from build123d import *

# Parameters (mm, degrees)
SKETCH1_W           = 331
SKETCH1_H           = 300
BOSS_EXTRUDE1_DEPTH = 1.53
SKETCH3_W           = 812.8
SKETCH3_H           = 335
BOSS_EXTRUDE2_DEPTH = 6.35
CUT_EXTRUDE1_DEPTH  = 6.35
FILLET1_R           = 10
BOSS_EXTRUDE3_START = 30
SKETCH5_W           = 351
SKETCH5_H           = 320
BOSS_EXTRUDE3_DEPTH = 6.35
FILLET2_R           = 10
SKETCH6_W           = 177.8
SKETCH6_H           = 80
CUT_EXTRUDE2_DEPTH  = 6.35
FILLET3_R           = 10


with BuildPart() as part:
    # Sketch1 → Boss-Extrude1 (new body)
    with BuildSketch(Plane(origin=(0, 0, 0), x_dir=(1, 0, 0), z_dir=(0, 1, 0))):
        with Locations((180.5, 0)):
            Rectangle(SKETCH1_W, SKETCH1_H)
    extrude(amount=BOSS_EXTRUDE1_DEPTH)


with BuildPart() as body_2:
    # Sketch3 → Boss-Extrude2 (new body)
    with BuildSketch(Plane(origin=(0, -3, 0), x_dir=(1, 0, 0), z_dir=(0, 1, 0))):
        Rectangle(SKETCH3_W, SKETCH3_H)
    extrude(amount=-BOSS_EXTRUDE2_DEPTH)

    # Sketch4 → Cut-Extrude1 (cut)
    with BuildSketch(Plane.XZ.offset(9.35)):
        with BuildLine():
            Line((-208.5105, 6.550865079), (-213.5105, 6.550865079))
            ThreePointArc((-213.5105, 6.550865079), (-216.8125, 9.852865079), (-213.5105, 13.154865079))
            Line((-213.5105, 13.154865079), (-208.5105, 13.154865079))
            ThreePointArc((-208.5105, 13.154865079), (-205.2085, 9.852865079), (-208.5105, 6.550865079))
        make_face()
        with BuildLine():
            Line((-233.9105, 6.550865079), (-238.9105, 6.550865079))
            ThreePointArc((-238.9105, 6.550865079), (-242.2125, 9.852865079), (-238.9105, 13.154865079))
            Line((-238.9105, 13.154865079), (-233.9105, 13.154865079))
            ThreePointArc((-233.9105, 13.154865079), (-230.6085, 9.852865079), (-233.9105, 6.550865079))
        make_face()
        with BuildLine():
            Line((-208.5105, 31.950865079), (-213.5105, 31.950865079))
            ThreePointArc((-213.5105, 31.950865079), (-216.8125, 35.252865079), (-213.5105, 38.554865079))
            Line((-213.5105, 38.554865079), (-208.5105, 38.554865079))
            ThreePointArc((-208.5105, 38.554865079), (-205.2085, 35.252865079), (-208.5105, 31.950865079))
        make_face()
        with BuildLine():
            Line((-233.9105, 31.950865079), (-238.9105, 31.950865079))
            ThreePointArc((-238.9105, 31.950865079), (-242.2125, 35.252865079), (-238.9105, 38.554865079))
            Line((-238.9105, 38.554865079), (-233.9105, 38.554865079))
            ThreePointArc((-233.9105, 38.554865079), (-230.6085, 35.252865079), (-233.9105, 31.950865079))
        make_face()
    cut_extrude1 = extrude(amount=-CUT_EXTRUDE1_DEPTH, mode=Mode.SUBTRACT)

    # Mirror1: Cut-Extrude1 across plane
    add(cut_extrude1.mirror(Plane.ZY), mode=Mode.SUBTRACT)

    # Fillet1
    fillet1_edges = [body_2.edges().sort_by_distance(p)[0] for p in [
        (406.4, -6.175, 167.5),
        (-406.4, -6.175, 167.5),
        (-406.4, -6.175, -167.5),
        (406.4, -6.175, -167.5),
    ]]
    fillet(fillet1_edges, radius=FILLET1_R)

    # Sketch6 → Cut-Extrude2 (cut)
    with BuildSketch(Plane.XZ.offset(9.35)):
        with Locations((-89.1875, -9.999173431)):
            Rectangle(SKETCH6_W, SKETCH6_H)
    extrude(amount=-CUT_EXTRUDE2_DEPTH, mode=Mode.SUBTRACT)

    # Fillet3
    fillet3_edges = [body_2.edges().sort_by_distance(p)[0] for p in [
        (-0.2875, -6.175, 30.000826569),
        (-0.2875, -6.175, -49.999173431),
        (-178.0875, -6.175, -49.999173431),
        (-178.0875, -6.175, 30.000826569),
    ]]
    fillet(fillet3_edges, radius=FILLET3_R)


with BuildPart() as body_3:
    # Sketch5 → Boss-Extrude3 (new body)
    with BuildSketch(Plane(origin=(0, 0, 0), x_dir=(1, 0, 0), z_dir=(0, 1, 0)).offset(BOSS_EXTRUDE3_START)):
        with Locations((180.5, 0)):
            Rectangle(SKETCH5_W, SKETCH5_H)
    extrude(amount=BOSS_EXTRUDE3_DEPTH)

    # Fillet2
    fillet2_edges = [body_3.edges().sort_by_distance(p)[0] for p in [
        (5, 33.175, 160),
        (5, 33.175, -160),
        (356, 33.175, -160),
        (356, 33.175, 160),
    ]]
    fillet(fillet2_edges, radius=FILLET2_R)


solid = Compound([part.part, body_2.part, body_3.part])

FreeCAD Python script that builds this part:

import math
import FreeCAD as App
import Part
import Sketcher
from FreeCAD import Vector
Q = App.Units.Quantity


def edges_at(feature, points):
    """Names of the edges that pass closest to the given points."""
    edges = feature.Shape.Edges
    near = lambda p: min(range(len(edges)), key=lambda i: edges[i].distToShape(Part.Vertex(*p))[0])
    return sorted({f"Edge{near(p) + 1}" for p in points})


def add_polygon(sketch, points):
    """Adds a closed chain of lines whose ends are joined by coincident constraints."""
    first, n = sketch.GeometryCount, len(points)
    for a, b in zip(points, points[1:] + points[:1]):
        sketch.addGeometry(Part.LineSegment(App.Vector(*a, 0), App.Vector(*b, 0)), False)
    for i in range(n):
        sketch.addConstraint(Sketcher.Constraint("Coincident", first + i, 2, first + (i + 1) % n, 1))

doc = App.newDocument("Part")
body = doc.addObject("PartDesign::Body", "Body")

# Sketch on XZ plane
sketch1 = doc.addObject("Sketcher::SketchObject", "Sketch")
body.addObject(sketch1)
sketch1.AttachmentSupport = (doc.XZ_Plane, [""])
sketch1.MapMode = "FlatFace"
add_polygon(sketch1, [(15, -150), (15, 150), (346, 150), (346, -150)])  # lines 0-3
sketch1.addConstraint(Sketcher.Constraint("Vertical", 0))
sketch1.addConstraint(Sketcher.Constraint("Horizontal", 1))
sketch1.addConstraint(Sketcher.Constraint("Vertical", 2))
sketch1.addConstraint(Sketcher.Constraint("Horizontal", 3))
sketch1.addConstraint(Sketcher.Constraint("DistanceX", 1, 1, 1, 2, Q("331 mm")))
sketch1.addConstraint(Sketcher.Constraint("DistanceY", 0, 1, 0, 2, Q("300 mm")))
sketch1.addConstraint(Sketcher.Constraint("DistanceX", -1, 1, 0, 2, Q("15 mm")))
sketch1.addConstraint(Sketcher.Constraint("DistanceY", -1, 1, 0, 2, Q("150 mm")))
pad1 = doc.addObject("PartDesign::Pad", "Pad")
body.addObject(pad1)
pad1.Profile = sketch1
pad1.Length = 1.53
pad1.Reversed = True
body2 = doc.addObject("PartDesign::Body", "Body001")

# Sketch on XZ plane
sketch2 = doc.addObject("Sketcher::SketchObject", "Sketch001")
body2.addObject(sketch2)
sketch2.AttachmentSupport = (doc.getObject("XZ_Plane001"), [""])
sketch2.MapMode = "FlatFace"
sketch2.AttachmentOffset = App.Placement(Vector(0, 0, 3), App.Rotation())
add_polygon(sketch2, [(-406, -168), (-406, 168), (406, 168), (406, -168)])  # lines 0-3
sketch2.addConstraint(Sketcher.Constraint("Vertical", 0))
sketch2.addConstraint(Sketcher.Constraint("Horizontal", 1))
sketch2.addConstraint(Sketcher.Constraint("Vertical", 2))
sketch2.addConstraint(Sketcher.Constraint("Horizontal", 3))
sketch2.addConstraint(Sketcher.Constraint("Symmetric", 0, 2, 2, 2, -1, 1))
sketch2.addConstraint(Sketcher.Constraint("DistanceY", 0, 1, 0, 2, Q("335 mm")))
sketch2.addConstraint(Sketcher.Constraint("DistanceX", 1, 1, 1, 2, Q("812.8 mm")))
pad2 = doc.addObject("PartDesign::Pad", "Pad001")
body2.addObject(pad2)
pad2.Profile = sketch2
pad2.Length = 6.35

# Sketch on XZ plane
sketch3 = doc.addObject("Sketcher::SketchObject", "Sketch002")
body2.addObject(sketch3)
sketch3.AttachmentSupport = (doc.getObject("XZ_Plane001"), [""])
sketch3.MapMode = "FlatFace"
sketch3.AttachmentOffset = App.Placement(Vector(0, 0, 9.35), App.Rotation())
sketch3.addGeometry(Part.LineSegment(Vector(-213.5, 6.6, 0), Vector(-208.5, 6.6, 0)), False)
sketch3.addGeometry(Part.ArcOfCircle(Part.Circle(Vector(-208.5, 9.9, 0), Vector(0, 0, 1), 3.3), math.radians(-90), math.radians(90)), False)
sketch3.addGeometry(Part.LineSegment(Vector(-208.5, 13.2, 0), Vector(-213.5, 13.2, 0)), False)
sketch3.addGeometry(Part.ArcOfCircle(Part.Circle(Vector(-213.5, 9.9, 0), Vector(0, 0, 1), 3.3), math.radians(90), math.radians(270)), False)
sketch3.addGeometry(Part.LineSegment(Vector(-238.9, 6.6, 0), Vector(-233.9, 6.6, 0)), False)
sketch3.addGeometry(Part.ArcOfCircle(Part.Circle(Vector(-233.9, 9.9, 0), Vector(0, 0, 1), 3.3), math.radians(-90), math.radians(90)), False)
sketch3.addGeometry(Part.LineSegment(Vector(-233.9, 13.2, 0), Vector(-238.9, 13.2, 0)), False)
sketch3.addGeometry(Part.ArcOfCircle(Part.Circle(Vector(-238.9, 9.9, 0), Vector(0, 0, 1), 3.3), math.radians(90), math.radians(270)), False)
sketch3.addGeometry(Part.LineSegment(Vector(-213.5, 32, 0), Vector(-208.5, 32, 0)), False)
sketch3.addGeometry(Part.ArcOfCircle(Part.Circle(Vector(-208.5, 35.3, 0), Vector(0, 0, 1), 3.3), math.radians(-90), math.radians(90)), False)
sketch3.addGeometry(Part.LineSegment(Vector(-208.5, 38.6, 0), Vector(-213.5, 38.6, 0)), False)
sketch3.addGeometry(Part.ArcOfCircle(Part.Circle(Vector(-213.5, 35.3, 0), Vector(0, 0, 1), 3.3), math.radians(90), math.radians(270)), False)
sketch3.addGeometry(Part.LineSegment(Vector(-238.9, 32, 0), Vector(-233.9, 32, 0)), False)
sketch3.addGeometry(Part.ArcOfCircle(Part.Circle(Vector(-233.9, 35.3, 0), Vector(0, 0, 1), 3.3), math.radians(-90), math.radians(90)), False)
sketch3.addGeometry(Part.LineSegment(Vector(-233.9, 38.6, 0), Vector(-238.9, 38.6, 0)), False)
sketch3.addGeometry(Part.ArcOfCircle(Part.Circle(Vector(-238.9, 35.3, 0), Vector(0, 0, 1), 3.3), math.radians(90), math.radians(270)), False)
sketch3.addConstraint(Sketcher.Constraint("Tangent", 0, 2, 1, 1))
sketch3.addConstraint(Sketcher.Constraint("Tangent", 1, 2, 2, 1))
sketch3.addConstraint(Sketcher.Constraint("Tangent", 2, 2, 3, 1))
sketch3.addConstraint(Sketcher.Constraint("Tangent", 3, 2, 0, 1))
sketch3.addConstraint(Sketcher.Constraint("Tangent", 4, 2, 5, 1))
sketch3.addConstraint(Sketcher.Constraint("Tangent", 5, 2, 6, 1))
sketch3.addConstraint(Sketcher.Constraint("Tangent", 6, 2, 7, 1))
sketch3.addConstraint(Sketcher.Constraint("Tangent", 7, 2, 4, 1))
sketch3.addConstraint(Sketcher.Constraint("Tangent", 8, 2, 9, 1))
sketch3.addConstraint(Sketcher.Constraint("Tangent", 9, 2, 10, 1))
sketch3.addConstraint(Sketcher.Constraint("Tangent", 10, 2, 11, 1))
sketch3.addConstraint(Sketcher.Constraint("Tangent", 11, 2, 8, 1))
sketch3.addConstraint(Sketcher.Constraint("Tangent", 12, 2, 13, 1))
sketch3.addConstraint(Sketcher.Constraint("Tangent", 13, 2, 14, 1))
sketch3.addConstraint(Sketcher.Constraint("Tangent", 14, 2, 15, 1))
sketch3.addConstraint(Sketcher.Constraint("Tangent", 15, 2, 12, 1))
sketch3.addConstraint(Sketcher.Constraint("Horizontal", 0))
sketch3.addConstraint(Sketcher.Constraint("Horizontal", 2))
sketch3.addConstraint(Sketcher.Constraint("Horizontal", 4))
sketch3.addConstraint(Sketcher.Constraint("Horizontal", 6))
sketch3.addConstraint(Sketcher.Constraint("Horizontal", 8))
sketch3.addConstraint(Sketcher.Constraint("Horizontal", 10))
sketch3.addConstraint(Sketcher.Constraint("Horizontal", 12))
sketch3.addConstraint(Sketcher.Constraint("Horizontal", 14))
sketch3.addConstraint(Sketcher.Constraint("Equal", 3, 5))
sketch3.addConstraint(Sketcher.Constraint("Equal", 7, 9))
sketch3.addConstraint(Sketcher.Constraint("Equal", 11, 13))
sketch3.addConstraint(Sketcher.Constraint("Horizontal", 3, 3, 5, 3))
sketch3.addConstraint(Sketcher.Constraint("Horizontal", 11, 3, 13, 3))
sketch3.addConstraint(Sketcher.Constraint("Vertical", 1, 3, 9, 3))
sketch3.addConstraint(Sketcher.Constraint("Vertical", 3, 3, 11, 3))
sketch3.addConstraint(Sketcher.Constraint("Vertical", 5, 3, 13, 3))
sketch3.addConstraint(Sketcher.Constraint("Vertical", 7, 3, 15, 3))
sketch3.addConstraint(Sketcher.Constraint("Equal", 2, 4))
sketch3.addConstraint(Sketcher.Constraint("DistanceX", 0, 1, 0, 2, Q("5 mm")))
sketch3.addConstraint(Sketcher.Constraint("Radius", 1, Q("3.302 mm")))
sketch3.addConstraint(Sketcher.Constraint("DistanceX", 5, 3, 3, 3, Q("20.4 mm")))
sketch3.addConstraint(Sketcher.Constraint("DistanceY", 1, 3, 9, 3, Q("25.4 mm")))
sketch3.addConstraint(Sketcher.Constraint("DistanceX", 1, 3, -1, 1, Q("208.5105 mm")))
sketch3.addConstraint(Sketcher.Constraint("DistanceY", -1, 1, 1, 3, Q("9.852865 mm")))
pocket1 = doc.addObject("PartDesign::Pocket", "Pocket")
body2.addObject(pocket1)
pocket1.Profile = sketch3
pocket1.Length = 6.35
doc.recompute()

mirrored = doc.addObject("PartDesign::Mirrored", "Mirrored")
body2.addObject(mirrored)
mirrored.Originals = [pocket1]
mirrored.MirrorPlane = (doc.getObject("YZ_Plane001"), [""])
body2.Tip = mirrored
doc.recompute()

fillet = doc.addObject("PartDesign::Fillet", "Fillet")
body2.addObject(fillet)
fillet.Base = (mirrored, edges_at(mirrored, [
    (406.4, -6.175, 167.5),
    (-406.4, -6.175, 167.5),
    (-406.4, -6.175, -167.5),
    (406.4, -6.175, -167.5),
]))
fillet.Radius = 10

# Sketch on XZ plane
sketch4 = doc.addObject("Sketcher::SketchObject", "Sketch003")
body2.addObject(sketch4)
sketch4.AttachmentSupport = (doc.getObject("XZ_Plane001"), [""])
sketch4.MapMode = "FlatFace"
sketch4.AttachmentOffset = App.Placement(Vector(0, 0, 9.35), App.Rotation())
add_polygon(sketch4, [(-178, 30), (-178, -50), (0, -50), (0, 30)])  # lines 0-3
sketch4.addConstraint(Sketcher.Constraint("Vertical", 0))
sketch4.addConstraint(Sketcher.Constraint("Horizontal", 1))
sketch4.addConstraint(Sketcher.Constraint("Vertical", 2))
sketch4.addConstraint(Sketcher.Constraint("Horizontal", 3))
sketch4.addConstraint(Sketcher.Constraint("DistanceY", 0, 2, 0, 1, Q("80 mm")))
sketch4.addConstraint(Sketcher.Constraint("DistanceX", 1, 1, 1, 2, Q("177.8 mm")))
sketch4.addConstraint(Sketcher.Constraint("DistanceX", 0, 2, -1, 1, Q("178.0875 mm")))
sketch4.addConstraint(Sketcher.Constraint("DistanceY", 0, 2, -1, 1, Q("49.999173 mm")))
pocket2 = doc.addObject("PartDesign::Pocket", "Pocket001")
body2.addObject(pocket2)
pocket2.Profile = sketch4
pocket2.Length = 6.35
doc.recompute()

fillet2 = doc.addObject("PartDesign::Fillet", "Fillet001")
body2.addObject(fillet2)
fillet2.Base = (pocket2, edges_at(pocket2, [
    (-0.287, -6.175, 30.001),
    (-0.287, -6.175, -49.999),
    (-178.088, -6.175, -49.999),
    (-178.088, -6.175, 30.001),
]))
fillet2.Radius = 10
body3 = doc.addObject("PartDesign::Body", "Body002")

# Sketch on XZ plane
sketch5 = doc.addObject("Sketcher::SketchObject", "Sketch004")
body3.addObject(sketch5)
sketch5.AttachmentSupport = (doc.getObject("XZ_Plane002"), [""])
sketch5.MapMode = "FlatFace"
sketch5.AttachmentOffset = App.Placement(Vector(0, 0, -30), App.Rotation())
add_polygon(sketch5, [(5, -160), (5, 160), (356, 160), (356, -160)])  # lines 0-3
sketch5.addConstraint(Sketcher.Constraint("Vertical", 0))
sketch5.addConstraint(Sketcher.Constraint("Horizontal", 1))
sketch5.addConstraint(Sketcher.Constraint("Vertical", 2))
sketch5.addConstraint(Sketcher.Constraint("Horizontal", 3))
sketch5.addConstraint(Sketcher.Constraint("DistanceX", 1, 1, 1, 2, Q("351 mm")))
sketch5.addConstraint(Sketcher.Constraint("DistanceY", 0, 1, 0, 2, Q("320 mm")))
sketch5.addConstraint(Sketcher.Constraint("DistanceX", -1, 1, 0, 2, Q("5 mm")))
sketch5.addConstraint(Sketcher.Constraint("DistanceY", -1, 1, 0, 2, Q("160 mm")))
pad3 = doc.addObject("PartDesign::Pad", "Pad002")
body3.addObject(pad3)
pad3.Profile = sketch5
pad3.Length = 6.35
pad3.Reversed = True
doc.recompute()

fillet3 = doc.addObject("PartDesign::Fillet", "Fillet002")
body3.addObject(fillet3)
fillet3.Base = (pad3, edges_at(pad3, [
    (5, 33.175, 160),
    (5, 33.175, -160),
    (356, 33.175, -160),
    (356, 33.175, 160),
]))
fillet3.Radius = 10

doc.recompute()
